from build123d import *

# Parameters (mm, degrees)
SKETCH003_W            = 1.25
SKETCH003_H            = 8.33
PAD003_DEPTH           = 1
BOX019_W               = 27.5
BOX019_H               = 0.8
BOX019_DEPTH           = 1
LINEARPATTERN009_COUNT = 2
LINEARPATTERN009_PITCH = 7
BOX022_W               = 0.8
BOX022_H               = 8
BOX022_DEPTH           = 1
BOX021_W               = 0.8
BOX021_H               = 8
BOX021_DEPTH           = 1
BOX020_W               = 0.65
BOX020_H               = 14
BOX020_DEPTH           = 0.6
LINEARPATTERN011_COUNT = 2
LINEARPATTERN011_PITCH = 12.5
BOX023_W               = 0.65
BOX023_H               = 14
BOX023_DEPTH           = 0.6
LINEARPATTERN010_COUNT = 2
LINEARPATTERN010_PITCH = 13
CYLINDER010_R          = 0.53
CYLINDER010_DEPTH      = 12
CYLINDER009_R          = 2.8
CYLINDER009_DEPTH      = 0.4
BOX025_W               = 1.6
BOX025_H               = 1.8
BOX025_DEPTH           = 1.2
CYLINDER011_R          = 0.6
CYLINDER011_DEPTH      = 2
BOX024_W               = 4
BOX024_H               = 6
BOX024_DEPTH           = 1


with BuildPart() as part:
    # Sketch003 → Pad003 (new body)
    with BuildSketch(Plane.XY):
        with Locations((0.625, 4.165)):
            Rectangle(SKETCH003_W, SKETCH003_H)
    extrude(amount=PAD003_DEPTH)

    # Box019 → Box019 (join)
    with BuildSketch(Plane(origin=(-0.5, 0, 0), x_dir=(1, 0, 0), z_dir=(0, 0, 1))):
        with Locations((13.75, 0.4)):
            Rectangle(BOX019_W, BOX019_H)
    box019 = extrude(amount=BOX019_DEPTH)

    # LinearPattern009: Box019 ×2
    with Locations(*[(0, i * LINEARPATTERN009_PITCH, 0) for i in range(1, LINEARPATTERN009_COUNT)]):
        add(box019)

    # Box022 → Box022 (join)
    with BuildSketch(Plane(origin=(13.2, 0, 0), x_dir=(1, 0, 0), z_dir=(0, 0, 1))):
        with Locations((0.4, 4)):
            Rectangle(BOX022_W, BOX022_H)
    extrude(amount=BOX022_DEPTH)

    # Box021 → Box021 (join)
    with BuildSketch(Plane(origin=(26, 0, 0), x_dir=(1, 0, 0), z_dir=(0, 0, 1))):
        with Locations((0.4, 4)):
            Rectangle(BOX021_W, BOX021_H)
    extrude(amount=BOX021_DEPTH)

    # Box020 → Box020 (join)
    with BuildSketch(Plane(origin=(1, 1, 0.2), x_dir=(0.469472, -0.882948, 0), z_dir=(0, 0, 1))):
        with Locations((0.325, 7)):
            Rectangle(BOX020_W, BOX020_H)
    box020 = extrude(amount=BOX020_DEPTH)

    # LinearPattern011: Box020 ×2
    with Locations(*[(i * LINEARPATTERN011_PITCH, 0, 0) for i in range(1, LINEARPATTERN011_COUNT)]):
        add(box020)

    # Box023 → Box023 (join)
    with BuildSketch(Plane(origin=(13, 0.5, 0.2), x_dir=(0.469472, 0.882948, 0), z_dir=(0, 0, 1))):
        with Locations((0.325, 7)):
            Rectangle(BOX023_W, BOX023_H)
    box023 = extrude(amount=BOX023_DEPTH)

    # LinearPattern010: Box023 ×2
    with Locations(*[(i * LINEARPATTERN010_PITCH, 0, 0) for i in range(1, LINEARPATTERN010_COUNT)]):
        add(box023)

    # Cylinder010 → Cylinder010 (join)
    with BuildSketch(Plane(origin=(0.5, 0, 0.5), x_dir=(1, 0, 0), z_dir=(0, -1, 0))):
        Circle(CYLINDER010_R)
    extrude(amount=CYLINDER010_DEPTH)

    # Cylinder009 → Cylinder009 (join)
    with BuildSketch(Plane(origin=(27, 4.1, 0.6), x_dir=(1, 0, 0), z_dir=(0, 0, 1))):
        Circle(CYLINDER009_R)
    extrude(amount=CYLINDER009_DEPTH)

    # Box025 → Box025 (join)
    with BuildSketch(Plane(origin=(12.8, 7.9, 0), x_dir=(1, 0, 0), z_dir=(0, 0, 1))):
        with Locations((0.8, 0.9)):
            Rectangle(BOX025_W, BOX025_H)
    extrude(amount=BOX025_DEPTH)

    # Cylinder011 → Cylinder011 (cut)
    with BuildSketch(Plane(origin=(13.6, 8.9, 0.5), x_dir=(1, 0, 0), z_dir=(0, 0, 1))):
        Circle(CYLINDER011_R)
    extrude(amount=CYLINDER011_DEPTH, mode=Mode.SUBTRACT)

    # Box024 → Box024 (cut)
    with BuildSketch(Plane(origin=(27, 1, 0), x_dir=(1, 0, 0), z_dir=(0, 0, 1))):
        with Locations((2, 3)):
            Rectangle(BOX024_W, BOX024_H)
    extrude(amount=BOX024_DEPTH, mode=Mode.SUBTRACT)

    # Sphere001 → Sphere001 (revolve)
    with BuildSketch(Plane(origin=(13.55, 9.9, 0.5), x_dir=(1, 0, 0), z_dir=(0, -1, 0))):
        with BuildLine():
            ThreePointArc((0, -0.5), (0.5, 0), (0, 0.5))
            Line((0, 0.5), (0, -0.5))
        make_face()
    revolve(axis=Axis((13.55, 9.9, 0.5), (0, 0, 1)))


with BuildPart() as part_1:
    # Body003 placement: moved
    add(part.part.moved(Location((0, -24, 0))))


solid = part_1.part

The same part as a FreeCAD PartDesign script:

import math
import FreeCAD as App
import Part
import Sketcher

V = App.Vector
Q = App.Units.Quantity


def add_polygon(sketch, points):
    """Adds a closed chain of lines whose ends are joined by coincident constraints."""
    first, n = sketch.GeometryCount, len(points)
    for a, b in zip(points, points[1:] + points[:1]):
        sketch.addGeometry(Part.LineSegment(App.Vector(*a, 0), App.Vector(*b, 0)), False)
    for i in range(n):
        sketch.addConstraint(Sketcher.Constraint("Coincident", first + i, 2, first + (i + 1) % n, 1))

doc = App.newDocument("Part")
body = doc.addObject("PartDesign::Body", "Body")

sketch1 = body.newObject("Sketcher::SketchObject", "Sketch")
sketch1.AttachmentSupport = (doc.getObject("XY_Plane"), [""])
sketch1.MapMode = "FlatFace"
add_polygon(sketch1, [(0, 8.3), (0, 0), (1.2, 0), (1.2, 8.3)])
sketch1.addConstraint([
    Sketcher.Constraint("Vertical", 0),
    Sketcher.Constraint("Horizontal", 1),
    Sketcher.Constraint("Vertical", 2),
    Sketcher.Constraint("Horizontal", 3),
    Sketcher.Constraint("Coincident", 0, 2, -1, 1),
    Sketcher.Constraint("DistanceX", 1, 1, 1, 2, 1.25),
    Sketcher.Constraint("DistanceY", 0, 2, 0, 1, 8.33),
])
pad1 = body.newObject("PartDesign::Pad", "Pad")
pad1.Profile = sketch1
pad1.Length = 1

sketch2 = body.newObject("Sketcher::SketchObject", "Sketch001")
sketch2.AttachmentSupport = (doc.getObject("XY_Plane"), [""])
sketch2.MapMode = "FlatFace"
add_polygon(sketch2, [(-0.5, 0.8), (-0.5, 0), (27, 0), (27, 0.8)])
sketch2.addConstraint([
    Sketcher.Constraint("Vertical", 0),
    Sketcher.Constraint("Horizontal", 1),
    Sketcher.Constraint("Vertical", 2),
    Sketcher.Constraint("Horizontal", 3),
    Sketcher.Constraint("PointOnObject", 0, 2, -1),
    Sketcher.Constraint("DistanceX", 1, 1, 1, 2, 27.5),
    Sketcher.Constraint("DistanceY", 0, 2, 0, 1, 0.8),
    Sketcher.Constraint("DistanceX", -1, 1, 1, 2, 27.0),
])
pad2 = body.newObject("PartDesign::Pad", "Pad001")
pad2.Profile = sketch2
pad2.Length = 1
doc.recompute()

linearpattern = body.newObject("PartDesign::LinearPattern", "LinearPattern")
linearpattern.Originals = [pad2]
linearpattern.Direction = (doc.getObject("Y_Axis"), [""])
linearpattern.Mode = "offset"
linearpattern.Offset = 7
linearpattern.Occurrences = 2
body.Tip = linearpattern

sketch3 = body.newObject("Sketcher::SketchObject", "Sketch002")
sketch3.AttachmentSupport = (doc.getObject("XY_Plane"), [""])
sketch3.MapMode = "FlatFace"
add_polygon(sketch3, [(13.2, 8), (13.2, 0), (14, 0), (14, 8)])
sketch3.addConstraint([
    Sketcher.Constraint("Vertical", 0),
    Sketcher.Constraint("Horizontal", 1),
    Sketcher.Constraint("Vertical", 2),
    Sketcher.Constraint("Horizontal", 3),
    Sketcher.Constraint("PointOnObject", 0, 2, -1),
    Sketcher.Constraint("DistanceY", 0, 2, 0, 1, 8.0),
    Sketcher.Constraint("DistanceX", 1, 1, 1, 2, 0.8),
    Sketcher.Constraint("DistanceX", -1, 1, 1, 2, 14.0),
])
pad3 = body.newObject("PartDesign::Pad", "Pad002")
pad3.Profile = sketch3
pad3.Length = 1

sketch4 = body.newObject("Sketcher::SketchObject", "Sketch003")
sketch4.AttachmentSupport = (doc.getObject("XY_Plane"), [""])
sketch4.MapMode = "FlatFace"
add_polygon(sketch4, [(26, 8), (26, 0), (26.8, 0), (26.8, 8)])
sketch4.addConstraint([
    Sketcher.Constraint("Vertical", 0),
    Sketcher.Constraint("Horizontal", 1),
    Sketcher.Constraint("Vertical", 2),
    Sketcher.Constraint("Horizontal", 3),
    Sketcher.Constraint("PointOnObject", 0, 2, -1),
    Sketcher.Constraint("DistanceY", 0, 2, 0, 1, 8.0),
    Sketcher.Constraint("DistanceX", 1, 1, 1, 2, 0.8),
    Sketcher.Constraint("DistanceX", -1, 1, 0, 2, 26.0),
])
pad4 = body.newObject("PartDesign::Pad", "Pad003")
pad4.Profile = sketch4
pad4.Length = 1

sketch5 = body.newObject("Sketcher::SketchObject", "Sketch004")
sketch5.AttachmentSupport = (doc.getObject("XY_Plane"), [""])
sketch5.MapMode = "FlatFace"
sketch5.AttachmentOffset = App.Placement(V(0, 0, 0.2), App.Rotation())
add_polygon(sketch5, [(13.4, 7.6), (1, 1), (1.3, 0.4), (13.7, 7)])
sketch5.addConstraint([
    Sketcher.Constraint("Perpendicular", 0, 1),
    Sketcher.Constraint("Perpendicular", 1, 2),
    Sketcher.Constraint("Perpendicular", 2, 3),
    Sketcher.Constraint("Angle", 0, Q("-151.999989 deg")),
    Sketcher.Constraint("Distance", 0, 14.0),
    Sketcher.Constraint("DistanceX", -1, 1, 0, 2, 1.0),
    Sketcher.Constraint("DistanceY", -1, 1, 0, 2, 1.0),
    Sketcher.Constraint("Distance", 1, 0.65),
])
pad5 = body.newObject("PartDesign::Pad", "Pad004")
pad5.Profile = sketch5
pad5.Length = 0.6
doc.recompute()

linearpattern2 = body.newObject("PartDesign::LinearPattern", "LinearPattern001")
linearpattern2.Originals = [pad5]
linearpattern2.Direction = (doc.getObject("X_Axis"), [""])
linearpattern2.Mode = "offset"
linearpattern2.Offset = 12.5
linearpattern2.Occurrences = 2
body.Tip = linearpattern2

sketch6 = body.newObject("Sketcher::SketchObject", "Sketch005")
sketch6.AttachmentSupport = (doc.getObject("XY_Plane"), [""])
sketch6.MapMode = "FlatFace"
sketch6.AttachmentOffset = App.Placement(V(0, 0, 0.2), App.Rotation())
add_polygon(sketch6, [(0.6, 7.1), (13, 0.5), (13.3, 1.1), (0.9, 7.6)])
sketch6.addConstraint([
    Sketcher.Constraint("Perpendicular", 0, 1),
    Sketcher.Constraint("Perpendicular", 1, 2),
    Sketcher.Constraint("Perpendicular", 2, 3),
    Sketcher.Constraint("Angle", 0, Q("-28.000011 deg")),
    Sketcher.Constraint("Distance", 0, 14.0),
    Sketcher.Constraint("DistanceX", -1, 1, 0, 2, 13.0),
    Sketcher.Constraint("DistanceY", -1, 1, 0, 2, 0.5),
    Sketcher.Constraint("Distance", 1, 0.65),
])
pad6 = body.newObject("PartDesign::Pad", "Pad005")
pad6.Profile = sketch6
pad6.Length = 0.6
doc.recompute()

linearpattern3 = body.newObject("PartDesign::LinearPattern", "LinearPattern002")
linearpattern3.Originals = [pad6]
linearpattern3.Direction = (doc.getObject("X_Axis"), [""])
linearpattern3.Mode = "offset"
linearpattern3.Offset = 13
linearpattern3.Occurrences = 2
body.Tip = linearpattern3

sketch7 = body.newObject("Sketcher::SketchObject", "Sketch006")
sketch7.AttachmentSupport = (doc.getObject("XZ_Plane"), [""])
sketch7.MapMode = "FlatFace"
sketch7.addGeometry(Part.Circle(V(0.5, 0.5, 0), V(0, 0, 1), 0.5), False)
sketch7.addConstraint([
    Sketcher.Constraint("Diameter", 0, 1.06),
    Sketcher.Constraint("DistanceX", -1, 1, 0, 3, 0.5),
    Sketcher.Constraint("DistanceY", -1, 1, 0, 3, 0.5),
])
pad7 = body.newObject("PartDesign::Pad", "Pad006")
pad7.Profile = sketch7
pad7.Length = 12

sketch8 = body.newObject("Sketcher::SketchObject", "Sketch007")
sketch8.AttachmentSupport = (doc.getObject("XY_Plane"), [""])
sketch8.MapMode = "FlatFace"
sketch8.AttachmentOffset = App.Placement(V(0, 0, 0.6), App.Rotation())
sketch8.addGeometry(Part.Circle(V(27, 4.1, 0), V(0, 0, 1), 2.8), False)
sketch8.addConstraint([
    Sketcher.Constraint("Diameter", 0, 5.6),
    Sketcher.Constraint("DistanceX", -1, 1, 0, 3, 27.0),
    Sketcher.Constraint("DistanceY", -1, 1, 0, 3, 4.1),
])
pad8 = body.newObject("PartDesign::Pad", "Pad007")
pad8.Profile = sketch8
pad8.Length = 0.4

sketch9 = body.newObject("Sketcher::SketchObject", "Sketch008")
sketch9.AttachmentSupport = (doc.getObject("XY_Plane"), [""])
sketch9.MapMode = "FlatFace"
add_polygon(sketch9, [(12.8, 9.7), (12.8, 7.9), (14.4, 7.9), (14.4, 9.7)])
sketch9.addConstraint([
    Sketcher.Constraint("Vertical", 0),
    Sketcher.Constraint("Horizontal", 1),
    Sketcher.Constraint("Vertical", 2),
    Sketcher.Constraint("Horizontal", 3),
    Sketcher.Constraint("DistanceX", 1, 1, 1, 2, 1.6),
    Sketcher.Constraint("DistanceY", 0, 2, 0, 1, 1.8),
    Sketcher.Constraint("DistanceX", -1, 1, 0, 2, 12.8),
    Sketcher.Constraint("DistanceY", -1, 1, 0, 2, 7.9),
])
pad9 = body.newObject("PartDesign::Pad", "Pad008")
pad9.Profile = sketch9
pad9.Length = 1.2

sketch10 = body.newObject("Sketcher::SketchObject", "Sketch009")
sketch10.AttachmentSupport = (doc.getObject("XY_Plane"), [""])
sketch10.MapMode = "FlatFace"
sketch10.AttachmentOffset = App.Placement(V(0, 0, 0.5), App.Rotation())
sketch10.addGeometry(Part.Circle(V(13.6, 8.9, 0), V(0, 0, 1), 0.6), False)
sketch10.addConstraint([
    Sketcher.Constraint("Diameter", 0, 1.2),
    Sketcher.Constraint("DistanceX", -1, 1, 0, 3, 13.6),
    Sketcher.Constraint("DistanceY", -1, 1, 0, 3, 8.9),
])
pocket1 = body.newObject("PartDesign::Pocket", "Pocket")
pocket1.Profile = sketch10
pocket1.Length = 2
pocket1.Reversed = True

sketch11 = body.newObject("Sketcher::SketchObject", "Sketch010")
sketch11.AttachmentSupport = (doc.getObject("XY_Plane"), [""])
sketch11.MapMode = "FlatFace"
add_polygon(sketch11, [(27, 7), (27, 1), (31, 1), (31, 7)])
sketch11.addConstraint([
    Sketcher.Constraint("Vertical", 0),
    Sketcher.Constraint("Horizontal", 1),
    Sketcher.Constraint("Vertical", 2),
    Sketcher.Constraint("Horizontal", 3),
    Sketcher.Constraint("DistanceX", 1, 1, 1, 2, 4.0),
    Sketcher.Constraint("DistanceY", 0, 2, 0, 1, 6.0),
    Sketcher.Constraint("DistanceX", -1, 1, 0, 2, 27.0),
    Sketcher.Constraint("DistanceY", -1, 1, 0, 2, 1.0),
])
pocket2 = body.newObject("PartDesign::Pocket", "Pocket001")
pocket2.Profile = sketch11
pocket2.Length = 1
pocket2.Reversed = True

sketch12 = body.newObject("Sketcher::SketchObject", "Sketch011")
sketch12.AttachmentSupport = (doc.getObject("XZ_Plane"), [""])
sketch12.MapMode = "FlatFace"
sketch12.AttachmentOffset = App.Placement(V(0, 0, -9.9), App.Rotation())
sketch12.addGeometry([
    Part.ArcOfCircle(Part.Circle(V(13.6, 0.5, 0), V(0, 0, 1), 0.5), math.radians(-90), math.radians(90)),
    Part.LineSegment(V(13.6, 1, 0), V(13.6, 0, 0)),
], False)
sketch12.addGeometry(Part.LineSegment(V(13.6, 0, 0), V(13.6, 1, 0)), True)
sketch12.addConstraint([
    Sketcher.Constraint("Coincident", 0, 1, 1, 2),
    Sketcher.Constraint("Coincident", 1, 1, 0, 2),
    Sketcher.Constraint("Vertical", 1),
    Sketcher.Constraint("Vertical", 2),
    Sketcher.Constraint("Coincident", 2, 1, 0, 1),
    Sketcher.Constraint("PointOnObject", 0, 1, -1),
    Sketcher.Constraint("Equal", 1, 2),
    Sketcher.Constraint("Radius", 0, 0.5),
    Sketcher.Constraint("DistanceX", -1, 1, 0, 3, 13.55),
    Sketcher.Constraint("DistanceX", -1, 1, 0, 1, 13.55),
])
revolution = body.newObject("PartDesign::Revolution", "Revolution")
revolution.Profile = sketch12
revolution.ReferenceAxis = (sketch12, ["Axis0"])
revolution.Angle = 360
body2 = doc.addObject("PartDesign::Body", "Body001")
doc.recompute()

body.Placement = App.Placement(V(0, -24, 0), App.Rotation(V(0, 0, 1), 0))
boolean = body2.newObject("PartDesign::Boolean", "Boolean")
boolean.Type = "Fuse"
boolean.addObjects([body])

doc.recompute()
